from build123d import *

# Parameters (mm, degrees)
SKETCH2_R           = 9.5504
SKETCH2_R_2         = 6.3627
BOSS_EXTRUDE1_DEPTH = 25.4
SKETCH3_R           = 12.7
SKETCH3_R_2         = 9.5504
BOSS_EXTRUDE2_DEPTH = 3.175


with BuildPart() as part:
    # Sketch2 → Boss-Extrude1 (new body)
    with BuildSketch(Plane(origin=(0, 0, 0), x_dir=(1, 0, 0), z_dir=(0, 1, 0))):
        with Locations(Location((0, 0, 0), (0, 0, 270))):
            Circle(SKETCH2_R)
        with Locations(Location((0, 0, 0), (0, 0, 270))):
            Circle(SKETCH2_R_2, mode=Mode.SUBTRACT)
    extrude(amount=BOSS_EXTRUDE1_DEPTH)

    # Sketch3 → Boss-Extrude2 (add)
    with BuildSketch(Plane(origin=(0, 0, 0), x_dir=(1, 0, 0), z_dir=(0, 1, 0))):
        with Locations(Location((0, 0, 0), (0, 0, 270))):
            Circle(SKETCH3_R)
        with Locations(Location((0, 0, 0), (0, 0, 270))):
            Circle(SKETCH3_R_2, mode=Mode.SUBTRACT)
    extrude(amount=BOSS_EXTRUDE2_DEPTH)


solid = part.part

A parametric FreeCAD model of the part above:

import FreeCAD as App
import Part
import Sketcher
Q = App.Units.Quantity

doc = App.newDocument("Part")
body = doc.addObject("PartDesign::Body", "Body")

# Sketch on XZ plane
sketch1 = body.newObject("Sketcher::SketchObject", "Sketch")
sketch1.AttachmentSupport = (doc.getObject("XZ_Plane"), [""])
sketch1.MapMode = "FlatFace"
sketch1.addGeometry([
    Part.Circle(App.Vector(0, 0, 0), App.Vector(0, 0, 1), 10),
    Part.Circle(App.Vector(0, 0, 0), App.Vector(0, 0, 1), 6),
], False)
sketch1.addConstraint([
    Sketcher.Constraint("Coincident", 0, 3, -1, 1),
    Sketcher.Constraint("Coincident", 1, 3, -1, 1),
    Sketcher.Constraint("Diameter", 0, Q("0.752 in")),
    Sketcher.Constraint("Diameter", 1, Q("0.501 in")),
])
pad1 = body.newObject("PartDesign::Pad", "Pad")
pad1.Profile = sketch1
pad1.Length = Q("1 in")
pad1.Reversed = True

# Sketch on XZ plane
sketch2 = body.newObject("Sketcher::SketchObject", "Sketch001")
sketch2.AttachmentSupport = (doc.getObject("XZ_Plane"), [""])
sketch2.MapMode = "FlatFace"
sketch2.addGeometry([
    Part.Circle(App.Vector(0, 0, 0), App.Vector(0, 0, 1), 13),
    Part.Circle(App.Vector(0, 0, 0), App.Vector(0, 0, 1), 10),
], False)
sketch2.addConstraint([
    Sketcher.Constraint("Coincident", 0, 3, -1, 1),
    Sketcher.Constraint("Coincident", 1, 3, -1, 1),
    Sketcher.Constraint("Diameter", 0, Q("1 in")),
    Sketcher.Constraint("Diameter", 1, Q("0.752 in")),
])
pad2 = body.newObject("PartDesign::Pad", "Pad001")
pad2.Profile = sketch2
pad2.Length = Q("0.125 in")
pad2.Reversed = True

doc.recompute()
